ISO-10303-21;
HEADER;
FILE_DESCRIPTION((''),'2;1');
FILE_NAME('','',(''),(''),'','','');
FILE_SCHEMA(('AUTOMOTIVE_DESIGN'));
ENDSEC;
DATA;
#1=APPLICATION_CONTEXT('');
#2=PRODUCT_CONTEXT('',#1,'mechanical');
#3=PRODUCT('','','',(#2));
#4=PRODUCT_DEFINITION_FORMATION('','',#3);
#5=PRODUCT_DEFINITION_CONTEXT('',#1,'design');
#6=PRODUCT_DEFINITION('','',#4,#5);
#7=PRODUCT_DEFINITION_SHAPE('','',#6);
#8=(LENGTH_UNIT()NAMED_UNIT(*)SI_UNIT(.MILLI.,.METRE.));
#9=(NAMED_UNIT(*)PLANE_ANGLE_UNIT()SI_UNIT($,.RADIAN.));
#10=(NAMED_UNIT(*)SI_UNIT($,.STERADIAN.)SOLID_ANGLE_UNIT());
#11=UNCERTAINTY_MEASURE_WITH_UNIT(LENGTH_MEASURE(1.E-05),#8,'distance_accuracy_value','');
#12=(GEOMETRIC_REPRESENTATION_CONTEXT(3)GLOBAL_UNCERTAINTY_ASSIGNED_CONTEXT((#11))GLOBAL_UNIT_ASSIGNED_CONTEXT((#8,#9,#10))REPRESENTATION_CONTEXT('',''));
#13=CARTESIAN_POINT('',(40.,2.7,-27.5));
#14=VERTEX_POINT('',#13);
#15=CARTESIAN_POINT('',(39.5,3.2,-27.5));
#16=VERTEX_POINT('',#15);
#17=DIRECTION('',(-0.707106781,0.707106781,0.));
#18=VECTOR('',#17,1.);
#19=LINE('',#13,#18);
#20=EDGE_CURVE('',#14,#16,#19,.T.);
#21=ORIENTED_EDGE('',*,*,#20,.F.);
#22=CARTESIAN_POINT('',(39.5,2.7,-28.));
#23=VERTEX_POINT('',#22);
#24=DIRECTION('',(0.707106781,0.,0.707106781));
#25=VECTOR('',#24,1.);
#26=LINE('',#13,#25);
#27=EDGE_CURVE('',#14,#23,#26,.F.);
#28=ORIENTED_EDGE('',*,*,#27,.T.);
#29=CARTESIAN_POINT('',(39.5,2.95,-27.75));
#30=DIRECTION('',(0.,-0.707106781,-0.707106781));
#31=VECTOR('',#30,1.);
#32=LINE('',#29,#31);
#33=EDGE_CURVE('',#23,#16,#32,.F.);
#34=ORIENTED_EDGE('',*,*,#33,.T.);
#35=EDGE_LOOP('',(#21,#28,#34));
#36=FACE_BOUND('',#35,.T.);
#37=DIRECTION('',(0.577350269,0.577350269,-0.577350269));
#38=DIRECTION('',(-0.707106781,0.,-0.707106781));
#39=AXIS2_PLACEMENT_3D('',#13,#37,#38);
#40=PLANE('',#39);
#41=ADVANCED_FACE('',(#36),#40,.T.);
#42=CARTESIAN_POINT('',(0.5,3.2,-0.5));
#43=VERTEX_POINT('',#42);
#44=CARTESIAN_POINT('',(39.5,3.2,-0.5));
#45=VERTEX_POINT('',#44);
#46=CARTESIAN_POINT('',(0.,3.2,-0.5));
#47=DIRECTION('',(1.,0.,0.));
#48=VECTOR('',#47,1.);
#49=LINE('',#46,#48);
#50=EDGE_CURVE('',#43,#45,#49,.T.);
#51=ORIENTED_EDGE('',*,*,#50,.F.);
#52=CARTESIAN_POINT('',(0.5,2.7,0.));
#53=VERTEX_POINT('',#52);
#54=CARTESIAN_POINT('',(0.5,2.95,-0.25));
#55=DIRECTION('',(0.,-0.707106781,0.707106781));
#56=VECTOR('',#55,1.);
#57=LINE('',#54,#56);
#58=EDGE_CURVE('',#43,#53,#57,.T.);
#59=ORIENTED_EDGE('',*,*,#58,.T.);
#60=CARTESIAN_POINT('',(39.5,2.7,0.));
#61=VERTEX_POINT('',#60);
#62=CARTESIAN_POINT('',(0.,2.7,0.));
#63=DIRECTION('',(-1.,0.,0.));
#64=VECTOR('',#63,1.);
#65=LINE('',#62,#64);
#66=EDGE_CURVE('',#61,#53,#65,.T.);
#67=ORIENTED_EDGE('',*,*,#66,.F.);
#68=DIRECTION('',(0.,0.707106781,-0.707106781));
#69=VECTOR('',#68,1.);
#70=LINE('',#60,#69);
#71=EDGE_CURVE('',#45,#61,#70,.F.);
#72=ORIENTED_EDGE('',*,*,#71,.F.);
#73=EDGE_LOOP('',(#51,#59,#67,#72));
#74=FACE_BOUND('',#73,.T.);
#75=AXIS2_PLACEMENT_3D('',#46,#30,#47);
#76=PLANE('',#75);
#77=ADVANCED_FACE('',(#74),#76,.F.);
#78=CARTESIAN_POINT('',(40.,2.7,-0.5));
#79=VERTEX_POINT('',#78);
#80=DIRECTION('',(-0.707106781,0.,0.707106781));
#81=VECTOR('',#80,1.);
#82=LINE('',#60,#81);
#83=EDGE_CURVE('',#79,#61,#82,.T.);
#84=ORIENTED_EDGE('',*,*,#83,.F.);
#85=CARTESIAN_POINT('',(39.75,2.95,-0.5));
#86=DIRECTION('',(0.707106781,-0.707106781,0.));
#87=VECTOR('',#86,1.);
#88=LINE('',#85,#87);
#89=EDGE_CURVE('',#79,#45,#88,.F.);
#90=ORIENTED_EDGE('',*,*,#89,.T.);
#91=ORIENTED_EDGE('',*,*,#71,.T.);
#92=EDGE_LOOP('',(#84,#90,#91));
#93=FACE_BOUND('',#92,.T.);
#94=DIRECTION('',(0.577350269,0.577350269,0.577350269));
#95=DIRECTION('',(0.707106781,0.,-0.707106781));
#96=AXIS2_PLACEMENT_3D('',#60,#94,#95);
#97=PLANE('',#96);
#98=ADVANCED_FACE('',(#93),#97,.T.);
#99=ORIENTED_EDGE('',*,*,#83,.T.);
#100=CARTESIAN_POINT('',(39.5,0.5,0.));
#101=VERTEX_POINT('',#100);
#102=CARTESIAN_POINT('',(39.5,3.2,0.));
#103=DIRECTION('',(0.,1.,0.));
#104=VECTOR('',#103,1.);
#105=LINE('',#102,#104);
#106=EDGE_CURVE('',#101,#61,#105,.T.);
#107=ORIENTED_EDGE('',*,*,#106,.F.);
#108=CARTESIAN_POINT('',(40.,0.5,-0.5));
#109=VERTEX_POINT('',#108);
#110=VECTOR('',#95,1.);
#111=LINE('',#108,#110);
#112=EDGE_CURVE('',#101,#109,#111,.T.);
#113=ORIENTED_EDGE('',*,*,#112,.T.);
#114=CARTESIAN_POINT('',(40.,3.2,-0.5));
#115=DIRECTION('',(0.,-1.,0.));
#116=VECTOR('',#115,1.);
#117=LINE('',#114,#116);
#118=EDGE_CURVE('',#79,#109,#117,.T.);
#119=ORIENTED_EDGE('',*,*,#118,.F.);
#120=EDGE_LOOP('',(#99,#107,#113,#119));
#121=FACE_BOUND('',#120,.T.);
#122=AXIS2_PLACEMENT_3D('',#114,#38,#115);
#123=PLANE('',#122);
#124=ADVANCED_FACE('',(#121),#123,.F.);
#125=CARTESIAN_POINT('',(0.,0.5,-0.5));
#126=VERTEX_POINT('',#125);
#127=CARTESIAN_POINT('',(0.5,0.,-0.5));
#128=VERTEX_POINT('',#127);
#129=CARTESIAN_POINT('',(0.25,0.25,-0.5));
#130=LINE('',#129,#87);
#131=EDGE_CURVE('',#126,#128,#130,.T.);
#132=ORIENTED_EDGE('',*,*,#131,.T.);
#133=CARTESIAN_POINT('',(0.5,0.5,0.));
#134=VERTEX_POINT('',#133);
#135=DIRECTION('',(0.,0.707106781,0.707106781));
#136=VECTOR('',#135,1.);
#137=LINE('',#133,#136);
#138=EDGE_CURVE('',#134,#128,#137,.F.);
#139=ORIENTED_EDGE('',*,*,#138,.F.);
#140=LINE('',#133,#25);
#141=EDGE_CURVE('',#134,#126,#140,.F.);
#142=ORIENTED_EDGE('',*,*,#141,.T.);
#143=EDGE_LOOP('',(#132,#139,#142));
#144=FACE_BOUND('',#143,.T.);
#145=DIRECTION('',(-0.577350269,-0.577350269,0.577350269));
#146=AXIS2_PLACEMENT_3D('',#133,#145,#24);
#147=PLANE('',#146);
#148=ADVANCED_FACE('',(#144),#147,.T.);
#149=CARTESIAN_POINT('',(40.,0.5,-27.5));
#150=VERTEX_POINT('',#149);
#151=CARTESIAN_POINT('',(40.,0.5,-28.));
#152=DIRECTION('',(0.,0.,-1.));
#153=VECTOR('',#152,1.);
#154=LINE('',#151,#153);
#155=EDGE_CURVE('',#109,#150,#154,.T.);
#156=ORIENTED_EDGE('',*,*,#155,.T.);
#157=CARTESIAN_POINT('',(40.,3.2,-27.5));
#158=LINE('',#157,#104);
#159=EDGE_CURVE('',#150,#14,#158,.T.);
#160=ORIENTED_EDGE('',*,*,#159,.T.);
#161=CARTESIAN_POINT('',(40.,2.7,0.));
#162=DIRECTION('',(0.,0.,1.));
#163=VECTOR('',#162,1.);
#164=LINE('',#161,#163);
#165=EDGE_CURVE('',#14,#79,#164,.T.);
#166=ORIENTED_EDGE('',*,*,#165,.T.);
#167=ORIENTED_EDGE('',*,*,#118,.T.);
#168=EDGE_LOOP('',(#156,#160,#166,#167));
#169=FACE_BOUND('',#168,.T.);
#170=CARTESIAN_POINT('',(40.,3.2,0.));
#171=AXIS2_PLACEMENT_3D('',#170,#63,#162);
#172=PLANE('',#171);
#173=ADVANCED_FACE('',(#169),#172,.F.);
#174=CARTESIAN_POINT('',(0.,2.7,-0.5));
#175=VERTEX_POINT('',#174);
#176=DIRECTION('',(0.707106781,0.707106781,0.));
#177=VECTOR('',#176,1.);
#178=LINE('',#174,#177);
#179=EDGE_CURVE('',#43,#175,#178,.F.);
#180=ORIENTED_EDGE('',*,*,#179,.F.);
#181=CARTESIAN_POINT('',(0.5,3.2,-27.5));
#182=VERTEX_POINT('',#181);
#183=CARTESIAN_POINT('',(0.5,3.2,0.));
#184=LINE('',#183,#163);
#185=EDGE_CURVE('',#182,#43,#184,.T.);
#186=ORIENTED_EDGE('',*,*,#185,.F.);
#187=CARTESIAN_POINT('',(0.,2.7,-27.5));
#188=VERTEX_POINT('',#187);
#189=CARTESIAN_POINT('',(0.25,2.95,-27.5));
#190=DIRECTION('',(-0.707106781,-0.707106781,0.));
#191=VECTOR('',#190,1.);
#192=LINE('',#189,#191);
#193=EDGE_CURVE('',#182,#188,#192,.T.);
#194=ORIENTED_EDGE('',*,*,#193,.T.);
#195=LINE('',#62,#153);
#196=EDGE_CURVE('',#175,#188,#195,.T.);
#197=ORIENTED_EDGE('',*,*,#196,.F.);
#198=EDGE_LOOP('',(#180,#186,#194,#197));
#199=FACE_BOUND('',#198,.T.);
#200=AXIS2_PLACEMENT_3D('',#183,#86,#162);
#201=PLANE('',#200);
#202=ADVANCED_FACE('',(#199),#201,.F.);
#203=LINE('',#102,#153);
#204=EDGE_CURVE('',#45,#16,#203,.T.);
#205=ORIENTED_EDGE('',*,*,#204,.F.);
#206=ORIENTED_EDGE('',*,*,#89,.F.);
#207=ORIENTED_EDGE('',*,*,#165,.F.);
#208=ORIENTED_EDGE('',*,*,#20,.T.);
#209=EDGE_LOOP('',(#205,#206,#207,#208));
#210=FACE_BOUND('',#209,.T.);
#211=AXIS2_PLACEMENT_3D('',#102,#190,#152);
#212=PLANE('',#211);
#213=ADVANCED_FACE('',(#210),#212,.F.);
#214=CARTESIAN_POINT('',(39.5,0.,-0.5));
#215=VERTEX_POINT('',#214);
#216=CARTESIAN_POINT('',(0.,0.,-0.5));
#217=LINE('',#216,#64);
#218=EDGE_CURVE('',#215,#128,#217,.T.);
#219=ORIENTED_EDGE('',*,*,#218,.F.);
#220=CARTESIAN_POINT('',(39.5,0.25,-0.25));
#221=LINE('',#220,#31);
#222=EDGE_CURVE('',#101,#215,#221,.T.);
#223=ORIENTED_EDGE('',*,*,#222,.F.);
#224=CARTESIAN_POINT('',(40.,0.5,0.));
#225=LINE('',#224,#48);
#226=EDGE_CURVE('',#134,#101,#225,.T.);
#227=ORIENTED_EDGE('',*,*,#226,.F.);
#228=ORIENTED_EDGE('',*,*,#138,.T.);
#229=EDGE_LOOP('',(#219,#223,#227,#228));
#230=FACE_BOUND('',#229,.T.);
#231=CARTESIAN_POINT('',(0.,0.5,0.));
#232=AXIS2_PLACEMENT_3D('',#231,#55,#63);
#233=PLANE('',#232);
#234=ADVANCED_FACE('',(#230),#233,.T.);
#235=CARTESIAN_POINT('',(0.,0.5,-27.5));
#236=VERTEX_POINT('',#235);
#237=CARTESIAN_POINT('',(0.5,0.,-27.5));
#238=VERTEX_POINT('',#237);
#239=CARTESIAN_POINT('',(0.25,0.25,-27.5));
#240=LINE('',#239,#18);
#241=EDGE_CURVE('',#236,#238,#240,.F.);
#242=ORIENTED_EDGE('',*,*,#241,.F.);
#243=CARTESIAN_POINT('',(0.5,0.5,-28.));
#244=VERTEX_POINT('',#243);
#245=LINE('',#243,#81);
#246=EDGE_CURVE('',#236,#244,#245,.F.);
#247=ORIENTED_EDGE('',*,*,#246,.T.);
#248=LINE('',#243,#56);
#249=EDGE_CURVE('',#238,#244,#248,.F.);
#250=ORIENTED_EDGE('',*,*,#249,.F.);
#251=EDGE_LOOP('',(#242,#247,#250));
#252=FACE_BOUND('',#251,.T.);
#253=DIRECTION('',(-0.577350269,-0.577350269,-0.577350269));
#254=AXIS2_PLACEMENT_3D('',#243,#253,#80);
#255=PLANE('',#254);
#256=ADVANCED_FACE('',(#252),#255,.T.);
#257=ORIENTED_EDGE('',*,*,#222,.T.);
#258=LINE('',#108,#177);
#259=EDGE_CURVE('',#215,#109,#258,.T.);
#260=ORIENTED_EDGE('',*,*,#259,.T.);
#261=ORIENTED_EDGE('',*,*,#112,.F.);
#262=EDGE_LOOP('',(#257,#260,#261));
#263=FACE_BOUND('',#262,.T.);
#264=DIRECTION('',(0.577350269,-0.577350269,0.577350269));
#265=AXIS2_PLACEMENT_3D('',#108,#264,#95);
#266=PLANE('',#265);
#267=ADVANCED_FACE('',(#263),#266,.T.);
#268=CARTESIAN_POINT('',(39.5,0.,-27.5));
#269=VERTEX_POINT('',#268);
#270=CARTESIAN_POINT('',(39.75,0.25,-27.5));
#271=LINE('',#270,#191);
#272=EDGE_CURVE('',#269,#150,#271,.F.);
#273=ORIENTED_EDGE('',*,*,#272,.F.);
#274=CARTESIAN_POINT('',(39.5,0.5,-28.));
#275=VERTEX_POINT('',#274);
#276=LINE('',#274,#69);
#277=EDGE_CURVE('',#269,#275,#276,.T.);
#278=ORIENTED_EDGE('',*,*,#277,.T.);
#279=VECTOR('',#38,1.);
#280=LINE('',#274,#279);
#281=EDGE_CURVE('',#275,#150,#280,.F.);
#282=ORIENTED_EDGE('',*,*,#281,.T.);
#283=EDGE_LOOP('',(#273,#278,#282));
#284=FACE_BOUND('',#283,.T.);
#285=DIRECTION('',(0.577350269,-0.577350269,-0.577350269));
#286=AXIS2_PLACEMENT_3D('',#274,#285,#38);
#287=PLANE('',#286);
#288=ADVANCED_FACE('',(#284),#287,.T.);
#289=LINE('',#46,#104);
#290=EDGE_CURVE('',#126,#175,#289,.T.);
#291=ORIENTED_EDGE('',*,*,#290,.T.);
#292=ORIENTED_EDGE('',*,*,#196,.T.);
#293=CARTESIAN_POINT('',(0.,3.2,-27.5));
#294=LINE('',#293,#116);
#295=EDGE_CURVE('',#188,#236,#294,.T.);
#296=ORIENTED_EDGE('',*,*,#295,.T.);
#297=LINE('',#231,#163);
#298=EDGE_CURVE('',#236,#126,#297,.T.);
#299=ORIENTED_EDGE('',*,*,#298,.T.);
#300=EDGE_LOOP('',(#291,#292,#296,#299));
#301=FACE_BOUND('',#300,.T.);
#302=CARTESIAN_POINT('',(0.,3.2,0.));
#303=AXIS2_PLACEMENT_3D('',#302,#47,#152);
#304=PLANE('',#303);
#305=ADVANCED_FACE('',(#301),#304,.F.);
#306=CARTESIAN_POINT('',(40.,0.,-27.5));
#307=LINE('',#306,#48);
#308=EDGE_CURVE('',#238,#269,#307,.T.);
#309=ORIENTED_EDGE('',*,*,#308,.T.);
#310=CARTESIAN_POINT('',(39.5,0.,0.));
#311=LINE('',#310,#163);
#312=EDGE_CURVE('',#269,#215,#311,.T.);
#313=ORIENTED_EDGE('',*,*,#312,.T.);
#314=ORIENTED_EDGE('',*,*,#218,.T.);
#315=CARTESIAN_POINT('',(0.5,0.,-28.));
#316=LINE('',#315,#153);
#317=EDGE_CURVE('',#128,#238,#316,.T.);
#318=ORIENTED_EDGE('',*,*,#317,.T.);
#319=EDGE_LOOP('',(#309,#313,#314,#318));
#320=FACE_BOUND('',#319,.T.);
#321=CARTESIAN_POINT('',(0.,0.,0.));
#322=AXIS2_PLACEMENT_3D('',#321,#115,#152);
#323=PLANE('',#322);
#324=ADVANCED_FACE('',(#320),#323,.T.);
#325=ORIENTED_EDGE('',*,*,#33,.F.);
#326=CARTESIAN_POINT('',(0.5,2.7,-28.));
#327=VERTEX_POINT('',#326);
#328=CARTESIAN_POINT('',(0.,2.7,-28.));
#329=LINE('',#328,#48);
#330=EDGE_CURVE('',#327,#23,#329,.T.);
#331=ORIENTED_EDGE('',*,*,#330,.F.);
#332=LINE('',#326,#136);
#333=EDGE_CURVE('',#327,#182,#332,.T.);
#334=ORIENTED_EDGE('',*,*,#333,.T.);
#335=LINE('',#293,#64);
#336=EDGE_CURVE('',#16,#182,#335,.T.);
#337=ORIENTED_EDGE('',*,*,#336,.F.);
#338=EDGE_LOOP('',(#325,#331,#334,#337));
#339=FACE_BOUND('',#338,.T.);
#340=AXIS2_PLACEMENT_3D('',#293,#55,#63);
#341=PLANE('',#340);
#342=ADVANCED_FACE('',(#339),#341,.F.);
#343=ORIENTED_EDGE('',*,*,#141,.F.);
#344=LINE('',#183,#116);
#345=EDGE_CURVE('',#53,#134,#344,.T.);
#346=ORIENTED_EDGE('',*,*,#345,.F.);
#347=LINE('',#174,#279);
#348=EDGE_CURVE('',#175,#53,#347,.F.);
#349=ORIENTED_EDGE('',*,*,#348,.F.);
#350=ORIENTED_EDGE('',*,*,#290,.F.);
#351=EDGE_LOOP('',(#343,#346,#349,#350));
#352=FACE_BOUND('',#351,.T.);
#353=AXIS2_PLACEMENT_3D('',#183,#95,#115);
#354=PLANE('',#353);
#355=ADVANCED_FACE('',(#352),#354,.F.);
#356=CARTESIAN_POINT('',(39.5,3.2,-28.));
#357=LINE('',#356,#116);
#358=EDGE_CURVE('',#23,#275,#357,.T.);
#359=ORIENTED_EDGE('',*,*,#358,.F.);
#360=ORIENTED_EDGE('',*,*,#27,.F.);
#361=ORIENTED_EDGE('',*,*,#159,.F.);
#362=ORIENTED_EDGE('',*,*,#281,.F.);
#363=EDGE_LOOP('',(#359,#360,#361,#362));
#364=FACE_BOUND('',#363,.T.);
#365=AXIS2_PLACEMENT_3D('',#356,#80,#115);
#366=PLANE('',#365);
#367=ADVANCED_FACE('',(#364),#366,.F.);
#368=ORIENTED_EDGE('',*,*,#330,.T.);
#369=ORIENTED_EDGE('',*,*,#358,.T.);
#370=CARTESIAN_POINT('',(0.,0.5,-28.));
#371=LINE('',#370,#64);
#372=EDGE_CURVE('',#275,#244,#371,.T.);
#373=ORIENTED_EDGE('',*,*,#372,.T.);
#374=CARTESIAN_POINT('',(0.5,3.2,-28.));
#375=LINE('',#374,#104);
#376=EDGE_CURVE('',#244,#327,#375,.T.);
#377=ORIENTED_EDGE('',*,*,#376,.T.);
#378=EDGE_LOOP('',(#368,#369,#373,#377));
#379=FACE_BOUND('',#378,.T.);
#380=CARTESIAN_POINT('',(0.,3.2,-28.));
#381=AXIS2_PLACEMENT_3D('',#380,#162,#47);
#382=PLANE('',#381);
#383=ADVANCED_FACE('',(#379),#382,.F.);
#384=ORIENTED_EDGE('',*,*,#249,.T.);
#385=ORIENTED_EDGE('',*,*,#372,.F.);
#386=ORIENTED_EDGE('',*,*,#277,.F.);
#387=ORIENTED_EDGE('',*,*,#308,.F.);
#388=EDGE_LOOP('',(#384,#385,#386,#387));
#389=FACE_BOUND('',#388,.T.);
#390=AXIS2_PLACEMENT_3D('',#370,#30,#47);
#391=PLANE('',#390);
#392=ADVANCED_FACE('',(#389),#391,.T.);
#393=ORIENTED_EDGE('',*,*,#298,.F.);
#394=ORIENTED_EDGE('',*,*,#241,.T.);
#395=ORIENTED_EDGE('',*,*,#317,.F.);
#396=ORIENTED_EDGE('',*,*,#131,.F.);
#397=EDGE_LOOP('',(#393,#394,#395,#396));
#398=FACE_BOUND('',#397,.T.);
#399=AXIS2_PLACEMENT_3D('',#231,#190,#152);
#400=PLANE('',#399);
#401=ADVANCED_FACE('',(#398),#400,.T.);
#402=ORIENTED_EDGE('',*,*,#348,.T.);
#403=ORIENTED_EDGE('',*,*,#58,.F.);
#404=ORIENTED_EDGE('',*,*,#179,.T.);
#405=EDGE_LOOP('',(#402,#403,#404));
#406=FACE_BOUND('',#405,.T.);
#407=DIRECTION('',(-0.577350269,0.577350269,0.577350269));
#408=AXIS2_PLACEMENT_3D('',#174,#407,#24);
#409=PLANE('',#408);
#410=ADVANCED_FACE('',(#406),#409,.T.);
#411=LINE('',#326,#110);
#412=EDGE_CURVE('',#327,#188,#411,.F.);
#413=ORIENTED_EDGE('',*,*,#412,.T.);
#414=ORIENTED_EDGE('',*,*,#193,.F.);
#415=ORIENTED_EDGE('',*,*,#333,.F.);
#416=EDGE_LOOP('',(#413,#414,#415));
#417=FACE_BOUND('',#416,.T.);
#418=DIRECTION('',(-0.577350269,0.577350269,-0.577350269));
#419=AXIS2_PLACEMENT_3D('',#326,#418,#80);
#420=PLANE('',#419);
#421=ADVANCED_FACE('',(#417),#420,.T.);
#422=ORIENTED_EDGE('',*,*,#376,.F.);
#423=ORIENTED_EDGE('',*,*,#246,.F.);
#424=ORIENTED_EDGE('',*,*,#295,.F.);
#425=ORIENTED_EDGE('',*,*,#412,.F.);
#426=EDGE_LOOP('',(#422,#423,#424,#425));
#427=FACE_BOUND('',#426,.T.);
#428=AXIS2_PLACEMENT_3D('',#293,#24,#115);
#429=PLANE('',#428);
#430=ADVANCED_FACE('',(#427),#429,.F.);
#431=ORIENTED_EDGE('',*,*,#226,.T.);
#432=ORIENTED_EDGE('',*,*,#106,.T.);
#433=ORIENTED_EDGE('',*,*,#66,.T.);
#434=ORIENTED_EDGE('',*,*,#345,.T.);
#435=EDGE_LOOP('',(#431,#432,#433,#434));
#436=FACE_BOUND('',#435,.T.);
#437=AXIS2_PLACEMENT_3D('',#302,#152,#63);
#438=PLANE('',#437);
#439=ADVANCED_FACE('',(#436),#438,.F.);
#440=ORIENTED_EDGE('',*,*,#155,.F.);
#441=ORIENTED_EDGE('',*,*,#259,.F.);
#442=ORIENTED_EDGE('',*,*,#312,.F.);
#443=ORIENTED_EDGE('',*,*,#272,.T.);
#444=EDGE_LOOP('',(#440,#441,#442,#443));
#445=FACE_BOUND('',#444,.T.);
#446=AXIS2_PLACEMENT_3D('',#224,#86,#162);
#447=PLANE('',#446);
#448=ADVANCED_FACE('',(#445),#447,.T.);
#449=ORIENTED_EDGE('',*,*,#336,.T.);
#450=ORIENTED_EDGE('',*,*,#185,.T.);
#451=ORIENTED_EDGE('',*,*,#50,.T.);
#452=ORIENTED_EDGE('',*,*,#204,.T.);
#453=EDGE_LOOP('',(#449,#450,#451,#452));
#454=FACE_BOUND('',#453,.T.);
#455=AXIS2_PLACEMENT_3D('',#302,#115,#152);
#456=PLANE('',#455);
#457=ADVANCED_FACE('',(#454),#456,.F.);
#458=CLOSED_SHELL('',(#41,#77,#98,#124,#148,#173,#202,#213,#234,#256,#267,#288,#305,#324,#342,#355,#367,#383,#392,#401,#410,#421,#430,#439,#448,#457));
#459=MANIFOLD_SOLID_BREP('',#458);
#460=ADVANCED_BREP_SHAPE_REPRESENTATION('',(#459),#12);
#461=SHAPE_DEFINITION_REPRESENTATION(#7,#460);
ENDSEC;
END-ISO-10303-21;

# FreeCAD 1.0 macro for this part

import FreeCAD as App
import Part
import Sketcher

V = App.Vector

doc = App.newDocument("Part")
body = doc.addObject("PartDesign::Body", "Body")

sketch1 = doc.addObject("Sketcher::SketchObject", "Sketch")
body.addObject(sketch1)
sketch1.AttachmentSupport = (doc.XZ_Plane, [""])
sketch1.MapMode = "FlatFace"
sketch1.addGeometry(Part.LineSegment(V(0, -28, 0), V(0, 0, 0)), False)
sketch1.addGeometry(Part.LineSegment(V(0, 0, 0), V(40, 0, 0)), False)
sketch1.addGeometry(Part.LineSegment(V(40, 0, 0), V(40, -28, 0)), False)
sketch1.addGeometry(Part.LineSegment(V(40, -28, 0), V(0, -28, 0)), False)
sketch1.addConstraint(Sketcher.Constraint("Coincident", 0, 2, 1, 1))
sketch1.addConstraint(Sketcher.Constraint("Coincident", 1, 2, 2, 1))
sketch1.addConstraint(Sketcher.Constraint("Coincident", 2, 2, 3, 1))
sketch1.addConstraint(Sketcher.Constraint("Coincident", 3, 2, 0, 1))
sketch1.addConstraint(Sketcher.Constraint("Vertical", 0))
sketch1.addConstraint(Sketcher.Constraint("Horizontal", 1))
sketch1.addConstraint(Sketcher.Constraint("Vertical", 2))
sketch1.addConstraint(Sketcher.Constraint("Horizontal", 3))
sketch1.addConstraint(Sketcher.Constraint("Coincident", 0, 2, -1, 1))
sketch1.addConstraint(Sketcher.Constraint("DistanceX", 1, 1, 1, 2, 40.0))
sketch1.addConstraint(Sketcher.Constraint("DistanceY", 0, 1, 0, 2, 28.0))
pad1 = doc.addObject("PartDesign::Pad", "Pad")
body.addObject(pad1)
pad1.Profile = sketch1
pad1.Length = 3.2
pad1.Reversed = True
doc.recompute()

chamfer = doc.addObject("PartDesign::Chamfer", "Chamfer")
body.addObject(chamfer)
chamfer.Base = (pad1, ["Edge1"])
chamfer.UseAllEdges = True
chamfer.Size = 0.5

doc.recompute()
